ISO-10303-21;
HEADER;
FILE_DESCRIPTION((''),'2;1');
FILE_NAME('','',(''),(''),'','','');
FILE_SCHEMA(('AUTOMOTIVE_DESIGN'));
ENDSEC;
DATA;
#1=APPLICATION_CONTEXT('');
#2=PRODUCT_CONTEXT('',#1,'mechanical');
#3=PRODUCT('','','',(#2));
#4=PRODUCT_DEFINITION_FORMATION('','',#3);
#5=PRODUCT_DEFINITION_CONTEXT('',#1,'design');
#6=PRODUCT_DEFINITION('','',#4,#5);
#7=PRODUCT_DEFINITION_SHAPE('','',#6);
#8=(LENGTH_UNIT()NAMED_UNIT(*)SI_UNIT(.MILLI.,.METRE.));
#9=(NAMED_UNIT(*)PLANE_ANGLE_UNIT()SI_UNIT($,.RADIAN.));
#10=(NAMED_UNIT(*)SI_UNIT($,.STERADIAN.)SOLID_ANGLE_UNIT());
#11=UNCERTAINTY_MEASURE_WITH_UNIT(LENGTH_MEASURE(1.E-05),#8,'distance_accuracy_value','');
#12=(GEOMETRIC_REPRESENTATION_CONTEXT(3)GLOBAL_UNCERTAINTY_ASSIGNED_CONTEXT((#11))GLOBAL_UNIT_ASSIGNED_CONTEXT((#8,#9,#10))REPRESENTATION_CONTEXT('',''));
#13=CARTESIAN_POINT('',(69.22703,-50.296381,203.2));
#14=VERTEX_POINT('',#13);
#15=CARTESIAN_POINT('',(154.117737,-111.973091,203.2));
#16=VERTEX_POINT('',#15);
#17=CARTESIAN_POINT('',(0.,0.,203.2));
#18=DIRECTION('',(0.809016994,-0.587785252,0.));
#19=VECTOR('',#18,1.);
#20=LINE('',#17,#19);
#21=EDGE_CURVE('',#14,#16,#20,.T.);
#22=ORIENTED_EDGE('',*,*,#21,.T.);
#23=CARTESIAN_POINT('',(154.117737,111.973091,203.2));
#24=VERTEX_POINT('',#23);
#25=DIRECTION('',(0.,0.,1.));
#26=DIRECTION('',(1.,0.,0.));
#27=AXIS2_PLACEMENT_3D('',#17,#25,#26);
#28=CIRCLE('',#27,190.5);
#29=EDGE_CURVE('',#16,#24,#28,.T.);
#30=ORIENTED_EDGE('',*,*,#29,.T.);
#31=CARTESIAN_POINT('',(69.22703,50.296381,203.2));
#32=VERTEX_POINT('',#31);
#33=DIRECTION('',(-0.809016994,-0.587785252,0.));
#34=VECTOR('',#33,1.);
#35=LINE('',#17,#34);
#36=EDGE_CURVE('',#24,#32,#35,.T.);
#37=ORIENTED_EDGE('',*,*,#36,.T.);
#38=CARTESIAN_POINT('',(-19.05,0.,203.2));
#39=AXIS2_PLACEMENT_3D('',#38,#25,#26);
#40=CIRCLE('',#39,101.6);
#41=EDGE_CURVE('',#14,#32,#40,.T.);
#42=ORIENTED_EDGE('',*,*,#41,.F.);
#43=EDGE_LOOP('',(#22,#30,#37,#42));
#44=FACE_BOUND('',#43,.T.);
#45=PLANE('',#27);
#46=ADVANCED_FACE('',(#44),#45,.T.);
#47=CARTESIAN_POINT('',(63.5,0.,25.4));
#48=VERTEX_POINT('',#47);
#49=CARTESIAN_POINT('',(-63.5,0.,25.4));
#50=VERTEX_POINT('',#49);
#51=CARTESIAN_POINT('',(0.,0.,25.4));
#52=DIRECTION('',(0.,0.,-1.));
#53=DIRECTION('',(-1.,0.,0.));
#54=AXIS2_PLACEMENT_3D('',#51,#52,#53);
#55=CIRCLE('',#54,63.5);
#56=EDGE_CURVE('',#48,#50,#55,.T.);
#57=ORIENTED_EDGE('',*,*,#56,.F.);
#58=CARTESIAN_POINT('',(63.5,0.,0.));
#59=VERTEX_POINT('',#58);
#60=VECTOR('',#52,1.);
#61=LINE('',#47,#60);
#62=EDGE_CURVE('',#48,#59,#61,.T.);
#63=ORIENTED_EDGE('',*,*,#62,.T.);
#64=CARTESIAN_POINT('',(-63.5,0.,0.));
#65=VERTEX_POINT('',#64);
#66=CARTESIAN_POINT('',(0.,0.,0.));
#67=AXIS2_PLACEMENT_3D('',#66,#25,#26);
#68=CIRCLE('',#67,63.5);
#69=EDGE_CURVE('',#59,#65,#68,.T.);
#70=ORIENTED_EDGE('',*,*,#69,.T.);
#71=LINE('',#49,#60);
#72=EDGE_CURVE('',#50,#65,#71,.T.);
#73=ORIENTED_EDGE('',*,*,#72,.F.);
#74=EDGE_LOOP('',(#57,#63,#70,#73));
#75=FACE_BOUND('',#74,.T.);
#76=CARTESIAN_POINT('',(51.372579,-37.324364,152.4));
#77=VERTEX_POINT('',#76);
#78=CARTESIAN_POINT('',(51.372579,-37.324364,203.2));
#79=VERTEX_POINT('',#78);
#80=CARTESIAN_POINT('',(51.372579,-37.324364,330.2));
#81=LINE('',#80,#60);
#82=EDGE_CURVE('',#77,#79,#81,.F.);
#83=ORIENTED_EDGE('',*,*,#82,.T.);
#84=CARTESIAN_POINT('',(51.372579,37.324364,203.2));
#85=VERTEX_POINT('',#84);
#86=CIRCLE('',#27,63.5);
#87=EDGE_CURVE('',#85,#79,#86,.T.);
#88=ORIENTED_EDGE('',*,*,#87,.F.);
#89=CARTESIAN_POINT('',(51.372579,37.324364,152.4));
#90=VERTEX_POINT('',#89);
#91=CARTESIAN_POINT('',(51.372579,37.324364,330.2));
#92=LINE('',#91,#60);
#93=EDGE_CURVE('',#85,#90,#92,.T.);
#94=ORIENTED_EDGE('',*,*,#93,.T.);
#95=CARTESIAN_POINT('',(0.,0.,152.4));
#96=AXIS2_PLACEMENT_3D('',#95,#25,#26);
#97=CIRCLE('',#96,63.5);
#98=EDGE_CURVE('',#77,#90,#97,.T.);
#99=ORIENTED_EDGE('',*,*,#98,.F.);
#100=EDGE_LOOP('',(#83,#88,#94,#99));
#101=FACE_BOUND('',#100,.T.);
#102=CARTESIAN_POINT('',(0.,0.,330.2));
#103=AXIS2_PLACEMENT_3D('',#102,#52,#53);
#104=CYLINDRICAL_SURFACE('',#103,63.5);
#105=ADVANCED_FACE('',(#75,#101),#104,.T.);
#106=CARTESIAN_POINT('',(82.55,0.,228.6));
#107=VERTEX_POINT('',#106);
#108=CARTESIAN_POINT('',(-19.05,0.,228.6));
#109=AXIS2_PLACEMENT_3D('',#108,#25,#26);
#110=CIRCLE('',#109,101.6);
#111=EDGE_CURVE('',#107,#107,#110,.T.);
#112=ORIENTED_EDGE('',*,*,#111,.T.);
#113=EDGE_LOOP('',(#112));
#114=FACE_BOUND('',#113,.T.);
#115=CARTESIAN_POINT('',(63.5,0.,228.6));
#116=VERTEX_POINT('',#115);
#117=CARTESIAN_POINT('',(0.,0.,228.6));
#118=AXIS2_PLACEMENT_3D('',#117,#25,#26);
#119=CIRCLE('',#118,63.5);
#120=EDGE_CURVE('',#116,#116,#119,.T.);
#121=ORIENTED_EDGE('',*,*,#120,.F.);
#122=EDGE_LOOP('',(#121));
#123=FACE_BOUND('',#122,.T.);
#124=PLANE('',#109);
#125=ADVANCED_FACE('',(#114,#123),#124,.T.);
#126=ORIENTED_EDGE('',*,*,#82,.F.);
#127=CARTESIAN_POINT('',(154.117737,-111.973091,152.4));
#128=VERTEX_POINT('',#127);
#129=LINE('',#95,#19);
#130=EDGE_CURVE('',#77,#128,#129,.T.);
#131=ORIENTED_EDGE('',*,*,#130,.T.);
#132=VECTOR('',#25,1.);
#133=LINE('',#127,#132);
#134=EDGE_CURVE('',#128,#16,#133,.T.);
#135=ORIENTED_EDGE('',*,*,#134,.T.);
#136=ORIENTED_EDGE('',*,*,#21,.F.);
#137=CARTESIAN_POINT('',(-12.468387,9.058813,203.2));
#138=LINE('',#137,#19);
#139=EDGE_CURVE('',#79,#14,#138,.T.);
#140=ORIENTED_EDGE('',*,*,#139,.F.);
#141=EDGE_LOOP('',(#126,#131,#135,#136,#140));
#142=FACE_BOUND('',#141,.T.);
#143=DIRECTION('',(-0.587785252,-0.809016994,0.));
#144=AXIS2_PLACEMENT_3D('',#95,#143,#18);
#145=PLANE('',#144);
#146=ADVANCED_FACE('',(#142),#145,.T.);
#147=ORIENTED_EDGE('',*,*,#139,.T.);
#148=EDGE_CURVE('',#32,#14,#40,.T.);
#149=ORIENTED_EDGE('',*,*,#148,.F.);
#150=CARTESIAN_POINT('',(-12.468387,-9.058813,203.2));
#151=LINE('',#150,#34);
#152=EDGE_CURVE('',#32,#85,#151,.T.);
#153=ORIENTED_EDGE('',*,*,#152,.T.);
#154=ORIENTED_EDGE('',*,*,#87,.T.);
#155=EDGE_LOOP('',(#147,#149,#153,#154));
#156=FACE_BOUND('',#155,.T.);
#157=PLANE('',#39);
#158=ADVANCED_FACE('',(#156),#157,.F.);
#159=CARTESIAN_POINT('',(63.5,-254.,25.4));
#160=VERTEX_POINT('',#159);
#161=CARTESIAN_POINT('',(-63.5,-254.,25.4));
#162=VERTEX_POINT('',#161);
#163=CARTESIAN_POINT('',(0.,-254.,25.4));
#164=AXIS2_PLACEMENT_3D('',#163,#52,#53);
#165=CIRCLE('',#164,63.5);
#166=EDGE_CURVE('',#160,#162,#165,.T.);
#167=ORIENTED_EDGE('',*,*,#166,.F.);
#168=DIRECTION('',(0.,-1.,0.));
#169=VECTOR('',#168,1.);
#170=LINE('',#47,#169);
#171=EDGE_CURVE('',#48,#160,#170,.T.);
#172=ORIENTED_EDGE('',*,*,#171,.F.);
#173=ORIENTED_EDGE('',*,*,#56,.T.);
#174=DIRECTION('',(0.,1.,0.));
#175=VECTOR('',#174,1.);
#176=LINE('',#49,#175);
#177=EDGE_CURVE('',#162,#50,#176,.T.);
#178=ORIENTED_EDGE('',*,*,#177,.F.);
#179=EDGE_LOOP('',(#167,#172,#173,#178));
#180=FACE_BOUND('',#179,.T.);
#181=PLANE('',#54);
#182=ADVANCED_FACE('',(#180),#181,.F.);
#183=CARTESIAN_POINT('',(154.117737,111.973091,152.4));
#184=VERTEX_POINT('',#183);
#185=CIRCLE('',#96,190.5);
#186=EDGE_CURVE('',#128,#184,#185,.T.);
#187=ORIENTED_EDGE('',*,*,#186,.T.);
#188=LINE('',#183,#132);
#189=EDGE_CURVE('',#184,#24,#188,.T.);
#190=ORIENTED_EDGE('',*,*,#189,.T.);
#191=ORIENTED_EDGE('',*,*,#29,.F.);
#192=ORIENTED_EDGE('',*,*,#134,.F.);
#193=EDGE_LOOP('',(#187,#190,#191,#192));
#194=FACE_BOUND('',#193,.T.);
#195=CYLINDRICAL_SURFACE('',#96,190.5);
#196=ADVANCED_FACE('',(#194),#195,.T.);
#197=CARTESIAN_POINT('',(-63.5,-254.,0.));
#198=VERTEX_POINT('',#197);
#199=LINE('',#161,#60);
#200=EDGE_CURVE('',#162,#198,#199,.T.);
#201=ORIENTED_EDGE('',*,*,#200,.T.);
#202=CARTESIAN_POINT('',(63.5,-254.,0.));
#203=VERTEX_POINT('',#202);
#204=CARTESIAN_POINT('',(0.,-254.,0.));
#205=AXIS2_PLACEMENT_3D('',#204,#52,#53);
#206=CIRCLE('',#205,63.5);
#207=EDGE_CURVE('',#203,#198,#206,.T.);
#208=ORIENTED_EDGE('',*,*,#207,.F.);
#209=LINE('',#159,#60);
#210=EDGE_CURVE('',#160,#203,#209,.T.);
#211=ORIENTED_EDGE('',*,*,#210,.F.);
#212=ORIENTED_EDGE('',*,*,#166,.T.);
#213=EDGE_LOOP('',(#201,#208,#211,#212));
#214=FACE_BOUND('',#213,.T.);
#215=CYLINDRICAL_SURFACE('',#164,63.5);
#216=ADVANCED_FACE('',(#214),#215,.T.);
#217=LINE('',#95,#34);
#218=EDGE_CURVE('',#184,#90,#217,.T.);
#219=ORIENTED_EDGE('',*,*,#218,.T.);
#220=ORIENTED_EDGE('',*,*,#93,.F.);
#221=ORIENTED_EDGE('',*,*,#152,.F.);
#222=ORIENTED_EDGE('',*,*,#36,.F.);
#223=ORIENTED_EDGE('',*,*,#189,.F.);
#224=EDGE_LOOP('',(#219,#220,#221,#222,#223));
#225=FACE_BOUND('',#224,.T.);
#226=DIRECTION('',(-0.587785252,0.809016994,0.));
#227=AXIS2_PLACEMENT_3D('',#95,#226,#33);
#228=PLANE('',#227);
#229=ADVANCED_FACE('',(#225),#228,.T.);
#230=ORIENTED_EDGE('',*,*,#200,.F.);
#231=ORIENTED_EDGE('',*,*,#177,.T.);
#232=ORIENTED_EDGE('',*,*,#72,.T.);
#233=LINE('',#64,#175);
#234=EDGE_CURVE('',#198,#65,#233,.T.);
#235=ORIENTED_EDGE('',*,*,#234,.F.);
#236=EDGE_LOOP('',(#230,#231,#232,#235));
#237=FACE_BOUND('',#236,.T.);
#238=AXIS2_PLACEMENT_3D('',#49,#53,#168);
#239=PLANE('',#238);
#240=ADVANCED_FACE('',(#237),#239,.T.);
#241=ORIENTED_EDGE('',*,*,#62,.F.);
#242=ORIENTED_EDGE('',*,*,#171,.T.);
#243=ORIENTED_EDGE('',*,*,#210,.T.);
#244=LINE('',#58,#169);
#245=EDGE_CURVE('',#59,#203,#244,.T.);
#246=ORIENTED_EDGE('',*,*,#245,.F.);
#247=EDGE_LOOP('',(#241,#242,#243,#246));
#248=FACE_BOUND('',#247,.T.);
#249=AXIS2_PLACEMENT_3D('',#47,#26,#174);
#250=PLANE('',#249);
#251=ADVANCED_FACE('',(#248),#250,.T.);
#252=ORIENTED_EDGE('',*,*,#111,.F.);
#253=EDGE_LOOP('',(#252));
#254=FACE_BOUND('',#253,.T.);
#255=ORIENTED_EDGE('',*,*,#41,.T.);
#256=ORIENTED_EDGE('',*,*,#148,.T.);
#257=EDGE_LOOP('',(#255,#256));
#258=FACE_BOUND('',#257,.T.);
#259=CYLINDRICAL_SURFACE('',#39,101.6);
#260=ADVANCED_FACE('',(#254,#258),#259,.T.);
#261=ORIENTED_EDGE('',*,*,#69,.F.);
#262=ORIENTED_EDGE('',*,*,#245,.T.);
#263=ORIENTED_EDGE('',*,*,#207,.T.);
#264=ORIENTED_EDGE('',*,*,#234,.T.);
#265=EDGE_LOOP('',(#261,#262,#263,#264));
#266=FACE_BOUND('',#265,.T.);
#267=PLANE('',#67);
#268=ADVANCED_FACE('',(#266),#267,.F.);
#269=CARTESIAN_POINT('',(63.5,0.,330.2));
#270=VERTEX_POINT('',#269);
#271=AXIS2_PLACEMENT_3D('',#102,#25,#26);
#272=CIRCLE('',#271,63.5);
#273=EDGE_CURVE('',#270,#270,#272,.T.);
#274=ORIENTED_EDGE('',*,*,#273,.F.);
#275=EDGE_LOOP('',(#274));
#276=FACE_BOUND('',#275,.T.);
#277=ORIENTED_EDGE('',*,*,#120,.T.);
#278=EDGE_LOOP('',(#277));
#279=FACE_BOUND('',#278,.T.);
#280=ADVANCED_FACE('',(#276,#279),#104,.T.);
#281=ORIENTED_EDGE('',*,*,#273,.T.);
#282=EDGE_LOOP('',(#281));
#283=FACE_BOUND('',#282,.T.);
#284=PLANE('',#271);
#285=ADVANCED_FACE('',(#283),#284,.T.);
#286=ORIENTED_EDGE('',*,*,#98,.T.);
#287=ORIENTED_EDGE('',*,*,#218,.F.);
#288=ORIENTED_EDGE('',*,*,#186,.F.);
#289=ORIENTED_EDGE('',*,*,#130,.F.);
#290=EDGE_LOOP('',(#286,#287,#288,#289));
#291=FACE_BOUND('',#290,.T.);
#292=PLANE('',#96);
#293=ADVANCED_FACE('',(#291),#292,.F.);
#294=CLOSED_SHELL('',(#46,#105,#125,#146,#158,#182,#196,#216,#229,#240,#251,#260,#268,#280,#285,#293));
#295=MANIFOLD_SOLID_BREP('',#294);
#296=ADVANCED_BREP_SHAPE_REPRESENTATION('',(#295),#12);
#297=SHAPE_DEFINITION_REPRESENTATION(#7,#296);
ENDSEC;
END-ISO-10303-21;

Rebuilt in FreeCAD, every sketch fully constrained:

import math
import FreeCAD as App
import Part
import Sketcher
from FreeCAD import Vector
Q = App.Units.Quantity

doc = App.newDocument("Part")
body = doc.addObject("PartDesign::Body", "Body")

# Sketch on XY plane
sketch1 = doc.addObject("Sketcher::SketchObject", "Sketch")
body.addObject(sketch1)
sketch1.AttachmentSupport = (doc.XY_Plane, [""])
sketch1.MapMode = "FlatFace"
sketch1.addGeometry(Part.Circle(Vector(0, 0, 0), Vector(0, 0, 1), 63.5), False)
sketch1.addConstraint([
    Sketcher.Constraint("Coincident", 0, 3, -1, 1),
    Sketcher.Constraint("Diameter", 0, Q("5 in")),
])
pad1 = doc.addObject("PartDesign::Pad", "Pad")
body.addObject(pad1)
pad1.Profile = sketch1
pad1.Length = Q("13 in")

# Sketch on XY plane
sketch2 = doc.addObject("Sketcher::SketchObject", "Sketch001")
body.addObject(sketch2)
sketch2.AttachmentSupport = (doc.XY_Plane, [""])
sketch2.MapMode = "FlatFace"
sketch2.addGeometry([
    Part.LineSegment(Vector(-63.5, -254, 0), Vector(-63.5, 0, 0)),
    Part.ArcOfCircle(Part.Circle(Vector(0, 0, 0), Vector(0, 0, 1), 63.5), math.radians(0), math.radians(180)),
    Part.LineSegment(Vector(63.5, 0, 0), Vector(63.5, -254, 0)),
    Part.ArcOfCircle(Part.Circle(Vector(0, -254, 0), Vector(0, 0, 1), 63.5), math.radians(180), math.radians(360)),
], False)
sketch2.addConstraint([
    Sketcher.Constraint("Tangent", 0, 2, 1, 2),
    Sketcher.Constraint("Tangent", 1, 1, 2, 1),
    Sketcher.Constraint("Tangent", 2, 2, 3, 2),
    Sketcher.Constraint("Tangent", 3, 1, 0, 1),
    Sketcher.Constraint("Vertical", 0),
    Sketcher.Constraint("Vertical", 2),
    Sketcher.Constraint("Coincident", 1, 3, -1, 1),
    Sketcher.Constraint("Radius", 1, Q("2.5 in")),
    Sketcher.Constraint("DistanceY", 0, 1, 0, 2, Q("10 in")),
])
pad2 = doc.addObject("PartDesign::Pad", "Pad001")
body.addObject(pad2)
pad2.Profile = sketch2
pad2.Length = Q("1 in")

# Sketch on XY plane
sketch3 = doc.addObject("Sketcher::SketchObject", "Sketch002")
body.addObject(sketch3)
sketch3.AttachmentSupport = (doc.XY_Plane, [""])
sketch3.MapMode = "FlatFace"
sketch3.AttachmentOffset = App.Placement(Vector(0, 0, 9 * 25.4), App.Rotation())
sketch3.addGeometry(Part.Circle(Vector(-19.05, 0, 0), Vector(0, 0, 1), 101.6), False)
sketch3.addConstraint([
    Sketcher.Constraint("PointOnObject", 0, 3, -1),
    Sketcher.Constraint("Diameter", 0, Q("8 in")),
    Sketcher.Constraint("DistanceX", 0, 3, -1, 1, Q("0.75 in")),
])
pad3 = doc.addObject("PartDesign::Pad", "Pad002")
body.addObject(pad3)
pad3.Profile = sketch3
pad3.Length = Q("1 in")
pad3.Reversed = True

# Sketch on XY plane
sketch4 = doc.addObject("Sketcher::SketchObject", "Sketch003")
body.addObject(sketch4)
sketch4.AttachmentSupport = (doc.XY_Plane, [""])
sketch4.MapMode = "FlatFace"
sketch4.AttachmentOffset = App.Placement(Vector(0, 0, 8 * 25.4), App.Rotation())
sketch4.addGeometry([
    Part.LineSegment(Vector(154.117737, 111.973091, 0), Vector(0, 0, 0)),
    Part.LineSegment(Vector(0, 0, 0), Vector(154.117737, -111.973091, 0)),
    Part.ArcOfCircle(Part.Circle(Vector(0, 0, 0), Vector(0, 0, 1), 190.5), math.radians(-36), math.radians(36)),
], False)
sketch4.addConstraint([
    Sketcher.Constraint("Coincident", 0, 2, 1, 1),
    Sketcher.Constraint("Coincident", 1, 2, 2, 1),
    Sketcher.Constraint("Coincident", 2, 2, 0, 1),
    Sketcher.Constraint("Coincident", 2, 3, -1, 1),
    Sketcher.Constraint("Coincident", 0, 2, -1, 1),
    Sketcher.Constraint("Vertical", 1, 2, 2, 2),
    Sketcher.Constraint("Radius", 2, Q("7.5 in")),
    Sketcher.Constraint("Angle", 0, Q("-144 deg")),
])
pad4 = doc.addObject("PartDesign::Pad", "Pad003")
body.addObject(pad4)
pad4.Profile = sketch4
pad4.Length = Q("2 in")
pad4.Reversed = True

doc.recompute()
